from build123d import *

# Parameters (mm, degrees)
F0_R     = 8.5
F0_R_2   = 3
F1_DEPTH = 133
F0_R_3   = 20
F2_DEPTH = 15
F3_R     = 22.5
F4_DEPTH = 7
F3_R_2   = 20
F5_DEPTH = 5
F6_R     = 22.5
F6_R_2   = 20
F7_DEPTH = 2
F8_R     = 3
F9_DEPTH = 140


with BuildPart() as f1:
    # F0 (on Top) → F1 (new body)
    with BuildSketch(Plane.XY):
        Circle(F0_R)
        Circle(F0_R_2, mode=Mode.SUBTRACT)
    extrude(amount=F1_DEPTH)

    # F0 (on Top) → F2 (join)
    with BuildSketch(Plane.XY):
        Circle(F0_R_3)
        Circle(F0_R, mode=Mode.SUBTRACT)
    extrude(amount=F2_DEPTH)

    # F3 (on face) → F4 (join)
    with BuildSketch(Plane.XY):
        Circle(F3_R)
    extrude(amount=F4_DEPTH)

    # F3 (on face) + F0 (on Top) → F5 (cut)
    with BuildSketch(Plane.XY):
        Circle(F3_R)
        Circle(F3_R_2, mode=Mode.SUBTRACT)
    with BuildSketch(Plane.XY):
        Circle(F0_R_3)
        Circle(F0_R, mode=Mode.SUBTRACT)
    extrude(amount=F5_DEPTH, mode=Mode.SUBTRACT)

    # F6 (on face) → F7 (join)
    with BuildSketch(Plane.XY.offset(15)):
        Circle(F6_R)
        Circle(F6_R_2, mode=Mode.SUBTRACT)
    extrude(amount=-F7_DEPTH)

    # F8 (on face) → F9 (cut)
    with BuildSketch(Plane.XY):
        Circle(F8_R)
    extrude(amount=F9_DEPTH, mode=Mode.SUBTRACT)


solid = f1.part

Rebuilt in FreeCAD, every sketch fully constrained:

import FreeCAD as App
import Part
import Sketcher

V = App.Vector

doc = App.newDocument("Part")
body = doc.addObject("PartDesign::Body", "Body")

# Sketch on XY plane
sketch1 = body.newObject("Sketcher::SketchObject", "Sketch")
sketch1.AttachmentSupport = (doc.getObject("XY_Plane"), [""])
sketch1.MapMode = "FlatFace"
sketch1.addGeometry(Part.Circle(V(0, 0, 0), V(0, 0, 1), 8.5), False)
sketch1.addGeometry(Part.Circle(V(0, 0, 0), V(0, 0, 1), 3), False)
sketch1.addConstraint(Sketcher.Constraint("Coincident", 0, 3, -1, 1))
sketch1.addConstraint(Sketcher.Constraint("Coincident", 1, 3, -1, 1))
sketch1.addConstraint(Sketcher.Constraint("Diameter", 0, 17.0))
sketch1.addConstraint(Sketcher.Constraint("Diameter", 1, 6.0))
pad1 = body.newObject("PartDesign::Pad", "Pad")
pad1.Profile = sketch1
pad1.Length = 133

# Sketch on XY plane
sketch2 = body.newObject("Sketcher::SketchObject", "Sketch001")
sketch2.AttachmentSupport = (doc.getObject("XY_Plane"), [""])
sketch2.MapMode = "FlatFace"
sketch2.addGeometry(Part.Circle(V(0, 0, 0), V(0, 0, 1), 20), False)
sketch2.addGeometry(Part.Circle(V(0, 0, 0), V(0, 0, 1), 8), False)
sketch2.addConstraint(Sketcher.Constraint("Coincident", 0, 3, -1, 1))
sketch2.addConstraint(Sketcher.Constraint("Coincident", 1, 3, -1, 1))
sketch2.addConstraint(Sketcher.Constraint("Diameter", 0, 40.0))
sketch2.addConstraint(Sketcher.Constraint("Diameter", 1, 17.0))
pad2 = body.newObject("PartDesign::Pad", "Pad001")
pad2.Profile = sketch2
pad2.Length = 15

# Sketch on XY plane
sketch3 = body.newObject("Sketcher::SketchObject", "Sketch002")
sketch3.AttachmentSupport = (doc.getObject("XY_Plane"), [""])
sketch3.MapMode = "FlatFace"
sketch3.addGeometry(Part.Circle(V(0, 0, 0), V(0, 0, 1), 22), False)
sketch3.addConstraint(Sketcher.Constraint("Coincident", 0, 3, -1, 1))
sketch3.addConstraint(Sketcher.Constraint("Diameter", 0, 45.0))
pad3 = body.newObject("PartDesign::Pad", "Pad002")
pad3.Profile = sketch3
pad3.Length = 7

# Sketch on XY plane
sketch4 = body.newObject("Sketcher::SketchObject", "Sketch003")
sketch4.AttachmentSupport = (doc.getObject("XY_Plane"), [""])
sketch4.MapMode = "FlatFace"
sketch4.addGeometry(Part.Circle(V(0, 0, 0), V(0, 0, 1), 22), False)
sketch4.addGeometry(Part.Circle(V(0, 0, 0), V(0, 0, 1), 8), False)
sketch4.addConstraint(Sketcher.Constraint("Coincident", 0, 3, -1, 1))
sketch4.addConstraint(Sketcher.Constraint("Coincident", 1, 3, -1, 1))
sketch4.addConstraint(Sketcher.Constraint("Diameter", 0, 45.0))
sketch4.addConstraint(Sketcher.Constraint("Diameter", 1, 17.0))
pocket1 = body.newObject("PartDesign::Pocket", "Pocket")
pocket1.Profile = sketch4
pocket1.Length = 5
pocket1.Reversed = True

# Sketch on XY plane
sketch5 = body.newObject("Sketcher::SketchObject", "Sketch004")
sketch5.AttachmentSupport = (doc.getObject("XY_Plane"), [""])
sketch5.MapMode = "FlatFace"
sketch5.AttachmentOffset = App.Placement(V(0, 0, 15), App.Rotation())
sketch5.addGeometry(Part.Circle(V(0, 0, 0), V(0, 0, 1), 22), False)
sketch5.addGeometry(Part.Circle(V(0, 0, 0), V(0, 0, 1), 20), False)
sketch5.addConstraint(Sketcher.Constraint("Coincident", 0, 3, -1, 1))
sketch5.addConstraint(Sketcher.Constraint("Coincident", 1, 3, -1, 1))
sketch5.addConstraint(Sketcher.Constraint("Diameter", 0, 45.0))
sketch5.addConstraint(Sketcher.Constraint("Diameter", 1, 40.0))
pad4 = body.newObject("PartDesign::Pad", "Pad003")
pad4.Profile = sketch5
pad4.Length = 2
pad4.Reversed = True

# Sketch on XY plane
sketch6 = body.newObject("Sketcher::SketchObject", "Sketch005")
sketch6.AttachmentSupport = (doc.getObject("XY_Plane"), [""])
sketch6.MapMode = "FlatFace"
sketch6.addGeometry(Part.Circle(V(0, 0, 0), V(0, 0, 1), 3), False)
sketch6.addConstraint(Sketcher.Constraint("Coincident", 0, 3, -1, 1))
sketch6.addConstraint(Sketcher.Constraint("Diameter", 0, 6.0))
pocket2 = body.newObject("PartDesign::Pocket", "Pocket001")
pocket2.Profile = sketch6
pocket2.Length = 140
pocket2.Reversed = True

doc.recompute()
